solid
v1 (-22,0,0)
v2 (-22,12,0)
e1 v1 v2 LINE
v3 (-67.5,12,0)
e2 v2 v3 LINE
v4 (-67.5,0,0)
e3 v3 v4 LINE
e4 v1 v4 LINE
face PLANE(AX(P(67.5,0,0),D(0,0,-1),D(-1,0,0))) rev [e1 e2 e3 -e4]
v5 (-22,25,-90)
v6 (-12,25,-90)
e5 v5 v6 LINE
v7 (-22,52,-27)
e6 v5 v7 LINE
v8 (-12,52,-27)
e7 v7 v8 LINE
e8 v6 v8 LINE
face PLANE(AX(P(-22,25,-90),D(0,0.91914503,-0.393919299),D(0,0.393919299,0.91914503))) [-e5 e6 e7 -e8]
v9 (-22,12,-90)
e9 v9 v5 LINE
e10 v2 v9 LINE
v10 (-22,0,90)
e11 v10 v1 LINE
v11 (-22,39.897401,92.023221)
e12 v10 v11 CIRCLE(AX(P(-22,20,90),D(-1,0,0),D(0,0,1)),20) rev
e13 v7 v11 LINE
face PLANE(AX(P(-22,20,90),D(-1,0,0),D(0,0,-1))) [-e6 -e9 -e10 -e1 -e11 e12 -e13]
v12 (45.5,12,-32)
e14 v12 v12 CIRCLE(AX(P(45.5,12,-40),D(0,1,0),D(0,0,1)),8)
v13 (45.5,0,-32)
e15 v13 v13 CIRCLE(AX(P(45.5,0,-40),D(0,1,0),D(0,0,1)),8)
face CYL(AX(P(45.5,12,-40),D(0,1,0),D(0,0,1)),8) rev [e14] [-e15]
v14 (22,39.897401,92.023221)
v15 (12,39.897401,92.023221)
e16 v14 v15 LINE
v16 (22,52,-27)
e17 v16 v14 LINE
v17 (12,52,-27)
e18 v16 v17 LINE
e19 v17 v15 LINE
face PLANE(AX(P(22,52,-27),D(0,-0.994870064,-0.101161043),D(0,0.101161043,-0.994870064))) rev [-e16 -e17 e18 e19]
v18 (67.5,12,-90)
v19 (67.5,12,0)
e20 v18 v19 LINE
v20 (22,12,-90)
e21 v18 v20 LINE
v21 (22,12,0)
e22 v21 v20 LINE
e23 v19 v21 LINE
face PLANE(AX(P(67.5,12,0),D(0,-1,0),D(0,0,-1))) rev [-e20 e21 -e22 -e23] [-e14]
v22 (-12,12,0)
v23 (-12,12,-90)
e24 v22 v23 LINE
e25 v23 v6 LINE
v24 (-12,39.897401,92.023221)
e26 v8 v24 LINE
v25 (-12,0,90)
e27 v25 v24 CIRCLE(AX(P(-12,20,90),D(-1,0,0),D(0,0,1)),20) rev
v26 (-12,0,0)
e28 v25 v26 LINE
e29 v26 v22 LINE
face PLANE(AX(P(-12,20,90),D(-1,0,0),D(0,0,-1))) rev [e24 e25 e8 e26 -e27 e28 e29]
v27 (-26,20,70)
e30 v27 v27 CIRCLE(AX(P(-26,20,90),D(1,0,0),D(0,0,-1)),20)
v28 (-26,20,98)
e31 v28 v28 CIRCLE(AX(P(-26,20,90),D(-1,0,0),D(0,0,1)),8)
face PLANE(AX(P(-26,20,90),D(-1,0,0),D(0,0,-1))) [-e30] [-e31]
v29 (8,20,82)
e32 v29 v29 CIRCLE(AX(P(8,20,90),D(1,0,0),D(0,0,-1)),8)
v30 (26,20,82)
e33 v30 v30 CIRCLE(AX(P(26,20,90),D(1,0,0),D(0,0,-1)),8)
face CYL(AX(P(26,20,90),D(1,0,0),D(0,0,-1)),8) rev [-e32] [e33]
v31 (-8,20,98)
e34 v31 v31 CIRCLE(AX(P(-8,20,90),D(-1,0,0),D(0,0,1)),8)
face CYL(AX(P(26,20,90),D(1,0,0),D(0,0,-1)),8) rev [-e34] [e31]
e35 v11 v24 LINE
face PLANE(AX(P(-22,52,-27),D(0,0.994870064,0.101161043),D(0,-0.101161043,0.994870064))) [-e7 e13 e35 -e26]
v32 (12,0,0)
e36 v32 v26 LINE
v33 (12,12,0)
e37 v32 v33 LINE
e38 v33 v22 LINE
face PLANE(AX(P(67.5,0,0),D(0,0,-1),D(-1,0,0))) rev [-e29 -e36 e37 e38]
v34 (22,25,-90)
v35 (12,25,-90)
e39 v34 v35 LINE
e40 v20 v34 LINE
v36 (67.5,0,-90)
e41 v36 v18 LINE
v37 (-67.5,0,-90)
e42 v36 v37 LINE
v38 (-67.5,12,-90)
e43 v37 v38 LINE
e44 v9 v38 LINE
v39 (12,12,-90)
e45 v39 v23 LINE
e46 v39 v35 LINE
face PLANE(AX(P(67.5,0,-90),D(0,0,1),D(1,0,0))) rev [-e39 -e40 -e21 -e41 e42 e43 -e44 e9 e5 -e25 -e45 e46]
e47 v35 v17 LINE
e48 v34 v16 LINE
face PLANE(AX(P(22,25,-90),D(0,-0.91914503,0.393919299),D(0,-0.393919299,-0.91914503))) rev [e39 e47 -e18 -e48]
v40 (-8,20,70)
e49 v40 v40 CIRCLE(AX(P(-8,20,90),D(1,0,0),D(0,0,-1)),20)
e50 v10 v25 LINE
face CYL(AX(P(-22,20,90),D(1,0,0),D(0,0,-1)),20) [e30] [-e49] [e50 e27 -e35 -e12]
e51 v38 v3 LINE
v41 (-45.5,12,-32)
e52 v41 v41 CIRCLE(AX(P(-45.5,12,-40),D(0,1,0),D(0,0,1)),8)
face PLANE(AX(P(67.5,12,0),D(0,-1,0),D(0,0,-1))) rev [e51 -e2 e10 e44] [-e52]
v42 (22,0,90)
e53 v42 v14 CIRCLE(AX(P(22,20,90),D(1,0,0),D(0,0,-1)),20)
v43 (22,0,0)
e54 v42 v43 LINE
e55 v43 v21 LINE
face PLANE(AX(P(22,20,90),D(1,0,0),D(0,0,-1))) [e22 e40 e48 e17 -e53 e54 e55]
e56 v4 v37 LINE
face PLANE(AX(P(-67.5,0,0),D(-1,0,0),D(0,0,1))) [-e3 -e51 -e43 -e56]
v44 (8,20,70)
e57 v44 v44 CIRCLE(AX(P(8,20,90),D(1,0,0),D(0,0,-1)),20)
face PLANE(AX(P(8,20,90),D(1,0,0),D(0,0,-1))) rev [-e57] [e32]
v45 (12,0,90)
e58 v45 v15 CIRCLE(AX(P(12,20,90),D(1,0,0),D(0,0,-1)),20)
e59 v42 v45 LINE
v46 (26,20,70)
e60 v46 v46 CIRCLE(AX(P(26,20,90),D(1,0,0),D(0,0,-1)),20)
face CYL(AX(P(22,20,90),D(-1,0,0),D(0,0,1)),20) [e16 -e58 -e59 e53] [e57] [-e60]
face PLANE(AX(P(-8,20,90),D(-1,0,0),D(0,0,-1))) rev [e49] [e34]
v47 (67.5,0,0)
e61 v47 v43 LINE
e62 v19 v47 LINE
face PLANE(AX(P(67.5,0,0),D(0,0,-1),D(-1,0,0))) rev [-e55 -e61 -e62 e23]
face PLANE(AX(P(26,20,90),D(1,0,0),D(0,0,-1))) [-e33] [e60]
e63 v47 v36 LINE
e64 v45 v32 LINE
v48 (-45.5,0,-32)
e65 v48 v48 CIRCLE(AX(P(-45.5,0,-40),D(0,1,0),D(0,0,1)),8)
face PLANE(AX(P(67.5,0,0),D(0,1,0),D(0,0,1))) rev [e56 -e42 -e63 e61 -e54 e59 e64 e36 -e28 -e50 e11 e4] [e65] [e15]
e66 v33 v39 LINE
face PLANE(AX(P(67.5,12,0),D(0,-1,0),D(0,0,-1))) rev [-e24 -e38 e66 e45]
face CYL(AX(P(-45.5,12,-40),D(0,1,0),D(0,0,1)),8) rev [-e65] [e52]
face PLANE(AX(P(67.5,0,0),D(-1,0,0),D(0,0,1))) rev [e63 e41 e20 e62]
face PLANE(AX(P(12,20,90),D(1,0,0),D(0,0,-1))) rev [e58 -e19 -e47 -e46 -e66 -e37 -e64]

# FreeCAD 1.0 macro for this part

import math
import FreeCAD as App
import Part
import Sketcher

V = App.Vector
Q = App.Units.Quantity

doc = App.newDocument("Part")
body = doc.addObject("PartDesign::Body", "Body")

sketch1 = body.newObject("Sketcher::SketchObject", "Sketch")
sketch1.AttachmentSupport = (doc.getObject("YZ_Plane"), [""])
sketch1.MapMode = "FlatFace"
sketch1.addGeometry(Part.LineSegment(V(12, 0, 0), V(0, 0, 0)), False)
sketch1.addGeometry(Part.LineSegment(V(0, 0, 0), V(0, -90, 0)), False)
sketch1.addGeometry(Part.LineSegment(V(0, -90, 0), V(12, -90, 0)), False)
sketch1.addGeometry(Part.LineSegment(V(12, -90, 0), V(12, 0, 0)), False)
sketch1.addConstraint(Sketcher.Constraint("Coincident", 0, 2, 1, 1))
sketch1.addConstraint(Sketcher.Constraint("Coincident", 1, 2, 2, 1))
sketch1.addConstraint(Sketcher.Constraint("Coincident", 2, 2, 3, 1))
sketch1.addConstraint(Sketcher.Constraint("Coincident", 3, 2, 0, 1))
sketch1.addConstraint(Sketcher.Constraint("Horizontal", 0))
sketch1.addConstraint(Sketcher.Constraint("Vertical", 1))
sketch1.addConstraint(Sketcher.Constraint("Horizontal", 2))
sketch1.addConstraint(Sketcher.Constraint("Vertical", 3))
sketch1.addConstraint(Sketcher.Constraint("Coincident", 0, 2, -1, 1))
sketch1.addConstraint(Sketcher.Constraint("DistanceX", 0, 2, 0, 1, Q("12 mm")))
sketch1.addConstraint(Sketcher.Constraint("DistanceY", 1, 2, 1, 1, Q("90 mm")))
pad1 = body.newObject("PartDesign::Pad", "Pad")
pad1.Profile = sketch1
pad1.Length = 135
pad1.Midplane = True

sketch2 = body.newObject("Sketcher::SketchObject", "Sketch001")
sketch2.AttachmentSupport = (doc.getObject("YZ_Plane"), [""])
sketch2.MapMode = "FlatFace"
sketch2.AttachmentOffset = App.Placement(V(0, 0, 12), App.Rotation())
sketch2.addGeometry(Part.LineSegment(V(12, 0, 0), V(12, -90, 0)), False)
sketch2.addGeometry(Part.LineSegment(V(12, -90, 0), V(25, -90, 0)), False)
sketch2.addGeometry(Part.LineSegment(V(25, -90, 0), V(52, -27, 0)), False)
sketch2.addGeometry(Part.LineSegment(V(52, -27, 0), V(39.897401, 92.023221, 0)), False)
sketch2.addGeometry(Part.ArcOfCircle(Part.Circle(V(20, 90, 0), V(0, 0, 1), 20), math.radians(5.806032), math.radians(180)), False)
sketch2.addGeometry(Part.LineSegment(V(0, 90, 0), V(0, 0, 0)), False)
sketch2.addGeometry(Part.LineSegment(V(0, 0, 0), V(12, 0, 0)), False)
sketch2.addConstraint(Sketcher.Constraint("Coincident", 0, 2, 1, 1))
sketch2.addConstraint(Sketcher.Constraint("Coincident", 1, 2, 2, 1))
sketch2.addConstraint(Sketcher.Constraint("Coincident", 2, 2, 3, 1))
sketch2.addConstraint(Sketcher.Constraint("Tangent", 3, 2, 4, 1))
sketch2.addConstraint(Sketcher.Constraint("Tangent", 4, 2, 5, 1))
sketch2.addConstraint(Sketcher.Constraint("Coincident", 5, 2, 6, 1))
sketch2.addConstraint(Sketcher.Constraint("Coincident", 6, 2, 0, 1))
sketch2.addConstraint(Sketcher.Constraint("Vertical", 0))
sketch2.addConstraint(Sketcher.Constraint("Horizontal", 1))
sketch2.addConstraint(Sketcher.Constraint("Vertical", 5))
sketch2.addConstraint(Sketcher.Constraint("Horizontal", 6))
sketch2.addConstraint(Sketcher.Constraint("Coincident", 5, 2, -1, 1))
sketch2.addConstraint(Sketcher.Constraint("Equal", 0, 5))
sketch2.addConstraint(Sketcher.Constraint("Radius", 4, Q("20 mm")))
sketch2.addConstraint(Sketcher.Constraint("DistanceX", 1, 1, 1, 2, Q("13 mm")))
sketch2.addConstraint(Sketcher.Constraint("DistanceX", 6, 1, 6, 2, Q("12 mm")))
sketch2.addConstraint(Sketcher.Constraint("DistanceY", 0, 2, 0, 1, Q("90 mm")))
sketch2.addConstraint(Sketcher.Constraint("DistanceX", -1, 1, 2, 2, Q("52 mm")))
sketch2.addConstraint(Sketcher.Constraint("DistanceY", 2, 2, -1, 1, Q("27 mm")))
pad2 = body.newObject("PartDesign::Pad", "Pad001")
pad2.Profile = sketch2
pad2.Length = 10

sketch3 = body.newObject("Sketcher::SketchObject", "Sketch002")
sketch3.AttachmentSupport = (doc.getObject("YZ_Plane"), [""])
sketch3.MapMode = "FlatFace"
sketch3.AttachmentOffset = App.Placement(V(0, 0, 8), App.Rotation())
sketch3.addGeometry(Part.Circle(V(20, 90, 0), V(0, 0, 1), 20), False)
sketch3.addConstraint(Sketcher.Constraint("Diameter", 0, Q("40 mm")))
sketch3.addConstraint(Sketcher.Constraint("DistanceX", -1, 1, 0, 3, Q("20 mm")))
sketch3.addConstraint(Sketcher.Constraint("DistanceY", -1, 1, 0, 3, Q("90 mm")))
pad3 = body.newObject("PartDesign::Pad", "Pad002")
pad3.Profile = sketch3
pad3.Length = 18
doc.recompute()

mirrored = body.newObject("PartDesign::Mirrored", "Mirrored")
mirrored.Originals = [pad2, pad3]
mirrored.MirrorPlane = (doc.getObject("YZ_Plane"), [""])
body.Tip = mirrored

sketch4 = body.newObject("Sketcher::SketchObject", "Sketch003")
sketch4.AttachmentSupport = (doc.getObject("YZ_Plane"), [""])
sketch4.MapMode = "FlatFace"
sketch4.AttachmentOffset = App.Placement(V(0, 0, 26), App.Rotation())
sketch4.addGeometry(Part.Circle(V(20, 90, 0), V(0, 0, 1), 8), False)
sketch4.addConstraint(Sketcher.Constraint("Diameter", 0, Q("16 mm")))
sketch4.addConstraint(Sketcher.Constraint("DistanceX", -1, 1, 0, 3, Q("20 mm")))
sketch4.addConstraint(Sketcher.Constraint("DistanceY", -1, 1, 0, 3, Q("90 mm")))
doc.recompute()
hole = body.newObject("PartDesign::Hole", "Hole")
hole.Profile = sketch4
hole.ThreadType = "None"
hole.Diameter = 16
hole.DepthType = "ThroughAll"

sketch5 = body.newObject("Sketcher::SketchObject", "Sketch004")
sketch5.AttachmentSupport = (doc.getObject("XZ_Plane"), [""])
sketch5.MapMode = "FlatFace"
sketch5.AttachmentOffset = App.Placement(V(0, 0, -12), App.Rotation())
sketch5.addGeometry(Part.Circle(V(45.5, -40, 0), V(0, 0, 1), 8), False)
sketch5.addConstraint(Sketcher.Constraint("Diameter", 0, Q("16 mm")))
sketch5.addConstraint(Sketcher.Constraint("DistanceY", 0, 3, -1, 1, Q("40 mm")))
sketch5.addConstraint(Sketcher.Constraint("DistanceX", -1, 1, 0, 3, Q("45.5 mm")))
doc.recompute()
hole2 = body.newObject("PartDesign::Hole", "Hole001")
hole2.Profile = sketch5
hole2.ThreadType = "None"
hole2.Diameter = 16
hole2.DepthType = "ThroughAll"
hole2.Reversed = True
doc.recompute()

mirrored2 = body.newObject("PartDesign::Mirrored", "Mirrored001")
mirrored2.Originals = [hole2]
mirrored2.MirrorPlane = (doc.getObject("YZ_Plane"), [""])
body.Tip = mirrored2

doc.recompute()
